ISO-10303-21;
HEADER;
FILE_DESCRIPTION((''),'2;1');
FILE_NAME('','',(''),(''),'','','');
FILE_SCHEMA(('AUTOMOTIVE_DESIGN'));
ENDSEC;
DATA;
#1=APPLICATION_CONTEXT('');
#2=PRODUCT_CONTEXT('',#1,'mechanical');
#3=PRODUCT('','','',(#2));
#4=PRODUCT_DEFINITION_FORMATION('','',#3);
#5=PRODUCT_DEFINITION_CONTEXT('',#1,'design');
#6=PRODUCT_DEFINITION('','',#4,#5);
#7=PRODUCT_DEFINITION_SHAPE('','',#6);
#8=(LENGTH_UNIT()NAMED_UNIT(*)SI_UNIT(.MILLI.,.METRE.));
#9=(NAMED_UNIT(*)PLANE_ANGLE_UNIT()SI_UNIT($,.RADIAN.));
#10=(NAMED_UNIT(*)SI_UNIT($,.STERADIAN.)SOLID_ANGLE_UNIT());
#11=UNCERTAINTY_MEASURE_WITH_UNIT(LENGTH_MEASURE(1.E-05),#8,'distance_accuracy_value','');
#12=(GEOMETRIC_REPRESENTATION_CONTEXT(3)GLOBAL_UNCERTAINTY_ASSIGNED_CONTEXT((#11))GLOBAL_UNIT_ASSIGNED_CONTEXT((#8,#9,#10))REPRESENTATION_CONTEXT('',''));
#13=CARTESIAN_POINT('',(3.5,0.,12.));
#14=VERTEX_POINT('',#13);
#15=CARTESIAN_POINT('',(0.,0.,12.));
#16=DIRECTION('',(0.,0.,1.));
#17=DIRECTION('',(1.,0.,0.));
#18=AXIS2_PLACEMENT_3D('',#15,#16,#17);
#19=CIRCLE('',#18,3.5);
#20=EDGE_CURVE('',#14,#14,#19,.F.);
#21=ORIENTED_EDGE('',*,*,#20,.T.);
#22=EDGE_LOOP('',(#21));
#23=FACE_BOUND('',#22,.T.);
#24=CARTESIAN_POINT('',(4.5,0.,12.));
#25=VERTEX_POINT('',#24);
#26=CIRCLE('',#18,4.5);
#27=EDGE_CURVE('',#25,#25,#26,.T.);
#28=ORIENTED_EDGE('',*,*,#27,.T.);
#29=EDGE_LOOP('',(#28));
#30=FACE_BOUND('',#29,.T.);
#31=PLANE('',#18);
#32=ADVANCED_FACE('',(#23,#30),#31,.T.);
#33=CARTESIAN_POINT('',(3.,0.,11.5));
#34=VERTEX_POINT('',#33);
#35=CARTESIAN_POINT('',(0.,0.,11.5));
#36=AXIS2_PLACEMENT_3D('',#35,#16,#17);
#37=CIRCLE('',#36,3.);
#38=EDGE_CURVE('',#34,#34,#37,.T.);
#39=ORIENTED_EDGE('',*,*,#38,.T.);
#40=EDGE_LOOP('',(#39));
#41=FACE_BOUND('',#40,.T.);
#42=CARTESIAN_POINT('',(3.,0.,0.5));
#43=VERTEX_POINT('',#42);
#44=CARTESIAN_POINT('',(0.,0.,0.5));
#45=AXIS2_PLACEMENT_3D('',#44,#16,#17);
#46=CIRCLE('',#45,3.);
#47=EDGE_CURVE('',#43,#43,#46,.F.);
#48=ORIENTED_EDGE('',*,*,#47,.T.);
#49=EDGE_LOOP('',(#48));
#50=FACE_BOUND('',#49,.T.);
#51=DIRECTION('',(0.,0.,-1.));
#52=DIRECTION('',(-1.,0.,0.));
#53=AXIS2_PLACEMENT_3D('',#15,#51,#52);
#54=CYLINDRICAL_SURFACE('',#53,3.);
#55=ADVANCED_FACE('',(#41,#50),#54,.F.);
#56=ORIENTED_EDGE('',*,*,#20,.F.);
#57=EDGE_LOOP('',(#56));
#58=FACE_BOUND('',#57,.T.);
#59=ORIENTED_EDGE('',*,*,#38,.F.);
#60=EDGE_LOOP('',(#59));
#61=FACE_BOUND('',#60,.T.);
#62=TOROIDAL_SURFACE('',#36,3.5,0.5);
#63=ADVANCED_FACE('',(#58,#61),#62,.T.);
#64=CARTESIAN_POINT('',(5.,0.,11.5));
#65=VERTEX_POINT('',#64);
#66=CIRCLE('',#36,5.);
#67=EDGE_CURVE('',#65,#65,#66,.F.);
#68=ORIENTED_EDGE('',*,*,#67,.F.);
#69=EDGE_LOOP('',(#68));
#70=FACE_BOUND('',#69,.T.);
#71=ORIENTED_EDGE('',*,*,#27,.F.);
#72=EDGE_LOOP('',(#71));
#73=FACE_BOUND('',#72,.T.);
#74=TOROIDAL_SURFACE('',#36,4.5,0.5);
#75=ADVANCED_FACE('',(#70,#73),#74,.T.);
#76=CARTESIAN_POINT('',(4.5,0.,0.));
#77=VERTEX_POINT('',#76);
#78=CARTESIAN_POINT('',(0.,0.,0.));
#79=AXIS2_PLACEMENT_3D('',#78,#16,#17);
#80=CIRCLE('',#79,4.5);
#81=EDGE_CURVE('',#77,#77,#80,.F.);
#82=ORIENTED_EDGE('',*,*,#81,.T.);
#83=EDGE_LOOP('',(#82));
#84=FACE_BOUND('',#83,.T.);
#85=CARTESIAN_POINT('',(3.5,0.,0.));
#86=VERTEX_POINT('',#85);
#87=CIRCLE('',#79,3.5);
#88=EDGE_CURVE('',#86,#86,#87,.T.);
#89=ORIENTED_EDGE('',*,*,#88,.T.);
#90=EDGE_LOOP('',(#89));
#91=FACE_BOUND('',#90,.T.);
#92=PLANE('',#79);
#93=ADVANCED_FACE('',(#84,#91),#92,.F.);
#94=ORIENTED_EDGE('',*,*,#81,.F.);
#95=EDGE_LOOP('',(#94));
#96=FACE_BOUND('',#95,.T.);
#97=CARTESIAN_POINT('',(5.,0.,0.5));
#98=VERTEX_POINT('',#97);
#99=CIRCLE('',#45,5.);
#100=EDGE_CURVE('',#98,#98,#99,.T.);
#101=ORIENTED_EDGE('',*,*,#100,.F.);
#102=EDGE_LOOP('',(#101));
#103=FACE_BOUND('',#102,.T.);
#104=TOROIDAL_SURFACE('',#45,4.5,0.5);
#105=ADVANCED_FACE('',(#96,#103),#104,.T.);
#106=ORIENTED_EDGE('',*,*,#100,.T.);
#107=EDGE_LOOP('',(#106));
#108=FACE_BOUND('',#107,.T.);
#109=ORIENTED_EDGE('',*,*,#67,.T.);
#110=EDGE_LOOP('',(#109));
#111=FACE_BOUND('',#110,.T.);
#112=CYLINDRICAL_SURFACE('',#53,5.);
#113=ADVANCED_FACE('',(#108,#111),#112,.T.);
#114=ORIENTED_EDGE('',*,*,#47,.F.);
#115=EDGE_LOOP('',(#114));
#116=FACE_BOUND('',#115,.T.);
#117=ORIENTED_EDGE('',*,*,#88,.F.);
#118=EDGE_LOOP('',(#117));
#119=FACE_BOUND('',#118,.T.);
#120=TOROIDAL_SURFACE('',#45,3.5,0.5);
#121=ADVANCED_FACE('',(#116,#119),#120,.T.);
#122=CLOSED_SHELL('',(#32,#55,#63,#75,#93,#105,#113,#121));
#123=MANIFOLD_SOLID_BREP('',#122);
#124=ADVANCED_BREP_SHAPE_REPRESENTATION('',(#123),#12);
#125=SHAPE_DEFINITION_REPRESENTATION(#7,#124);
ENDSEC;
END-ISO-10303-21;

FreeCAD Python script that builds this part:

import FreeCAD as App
import Part
import Sketcher
from FreeCAD import Vector


def edges_at(feature, points):
    """Names of the edges that pass closest to the given points."""
    edges = feature.Shape.Edges
    near = lambda p: min(range(len(edges)), key=lambda i: edges[i].distToShape(Part.Vertex(*p))[0])
    return sorted({f"Edge{near(p) + 1}" for p in points})

doc = App.newDocument("Part")
body = doc.addObject("PartDesign::Body", "Body")

# Sketch on XY plane
sketch1 = body.newObject("Sketcher::SketchObject", "Sketch")
sketch1.AttachmentSupport = (doc.getObject("XY_Plane"), [""])
sketch1.MapMode = "FlatFace"
sketch1.addGeometry([
    Part.Circle(Vector(0, 0, 0), Vector(0, 0, 1), 5),
    Part.Circle(Vector(0, 0, 0), Vector(0, 0, 1), 3),
], False)
sketch1.addConstraint([
    Sketcher.Constraint("Coincident", 0, 3, -1, 1),
    Sketcher.Constraint("Coincident", 1, 3, -1, 1),
    Sketcher.Constraint("Diameter", 0, 10.0),
    Sketcher.Constraint("Diameter", 1, 6.0),
])
pad1 = body.newObject("PartDesign::Pad", "Pad")
pad1.Profile = sketch1
pad1.Length = 12
doc.recompute()

fillet = body.newObject("PartDesign::Fillet", "Fillet")
fillet.Base = (pad1, edges_at(pad1, [
    (-5, 0, 0),
    (-5, 0, 12),
    (-3, 0, 0),
    (-3, 0, 12),
]))
fillet.Radius = 0.5

doc.recompute()
